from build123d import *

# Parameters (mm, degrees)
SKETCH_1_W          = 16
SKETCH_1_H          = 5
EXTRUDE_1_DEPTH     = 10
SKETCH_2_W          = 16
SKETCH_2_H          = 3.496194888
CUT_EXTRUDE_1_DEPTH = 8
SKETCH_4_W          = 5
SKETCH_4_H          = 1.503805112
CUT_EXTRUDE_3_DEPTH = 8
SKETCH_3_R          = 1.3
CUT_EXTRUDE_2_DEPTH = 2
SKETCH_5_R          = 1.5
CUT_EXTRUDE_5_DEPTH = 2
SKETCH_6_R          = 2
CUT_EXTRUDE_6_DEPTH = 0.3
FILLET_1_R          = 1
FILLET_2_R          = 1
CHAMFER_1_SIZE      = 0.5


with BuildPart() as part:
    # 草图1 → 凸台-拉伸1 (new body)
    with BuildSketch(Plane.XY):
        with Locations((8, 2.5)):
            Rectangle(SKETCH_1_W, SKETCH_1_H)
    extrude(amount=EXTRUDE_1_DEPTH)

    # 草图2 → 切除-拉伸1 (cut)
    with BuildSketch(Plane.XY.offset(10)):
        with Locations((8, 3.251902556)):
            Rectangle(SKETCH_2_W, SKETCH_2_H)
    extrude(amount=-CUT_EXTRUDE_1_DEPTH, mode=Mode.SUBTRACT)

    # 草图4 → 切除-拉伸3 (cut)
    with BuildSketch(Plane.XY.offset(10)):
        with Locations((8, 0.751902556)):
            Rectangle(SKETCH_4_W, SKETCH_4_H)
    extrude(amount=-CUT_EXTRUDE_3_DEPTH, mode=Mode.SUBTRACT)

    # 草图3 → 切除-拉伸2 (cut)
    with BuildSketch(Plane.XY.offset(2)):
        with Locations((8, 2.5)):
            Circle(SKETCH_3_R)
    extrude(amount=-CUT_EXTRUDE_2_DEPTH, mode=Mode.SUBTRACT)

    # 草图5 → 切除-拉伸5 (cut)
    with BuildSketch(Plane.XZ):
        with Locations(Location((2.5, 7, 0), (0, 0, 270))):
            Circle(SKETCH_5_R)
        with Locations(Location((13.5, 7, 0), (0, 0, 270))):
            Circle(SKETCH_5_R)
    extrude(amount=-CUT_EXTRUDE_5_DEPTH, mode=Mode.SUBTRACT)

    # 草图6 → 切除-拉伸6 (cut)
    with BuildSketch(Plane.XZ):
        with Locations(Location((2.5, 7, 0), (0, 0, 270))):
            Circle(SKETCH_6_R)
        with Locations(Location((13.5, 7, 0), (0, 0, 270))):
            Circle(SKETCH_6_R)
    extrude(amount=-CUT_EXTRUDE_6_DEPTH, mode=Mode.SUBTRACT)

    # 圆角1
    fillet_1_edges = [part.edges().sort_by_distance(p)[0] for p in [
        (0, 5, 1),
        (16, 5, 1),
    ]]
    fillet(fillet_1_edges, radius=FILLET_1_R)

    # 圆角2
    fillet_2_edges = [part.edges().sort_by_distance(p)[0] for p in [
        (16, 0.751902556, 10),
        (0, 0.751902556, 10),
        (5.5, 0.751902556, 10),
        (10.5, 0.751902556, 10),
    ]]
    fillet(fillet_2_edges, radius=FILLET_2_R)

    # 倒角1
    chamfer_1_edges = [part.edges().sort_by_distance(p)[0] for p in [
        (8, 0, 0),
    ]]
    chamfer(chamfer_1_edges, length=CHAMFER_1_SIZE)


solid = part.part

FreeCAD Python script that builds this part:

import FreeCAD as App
import Part
import Sketcher

V = App.Vector
Q = App.Units.Quantity


def edges_at(feature, points):
    """Names of the edges that pass closest to the given points."""
    edges = feature.Shape.Edges
    near = lambda p: min(range(len(edges)), key=lambda i: edges[i].distToShape(Part.Vertex(*p))[0])
    return sorted({f"Edge{near(p) + 1}" for p in points})


def add_polygon(sketch, points):
    """Adds a closed chain of lines whose ends are joined by coincident constraints."""
    first, n = sketch.GeometryCount, len(points)
    for a, b in zip(points, points[1:] + points[:1]):
        sketch.addGeometry(Part.LineSegment(App.Vector(*a, 0), App.Vector(*b, 0)), False)
    for i in range(n):
        sketch.addConstraint(Sketcher.Constraint("Coincident", first + i, 2, first + (i + 1) % n, 1))

doc = App.newDocument("Part")
body = doc.addObject("PartDesign::Body", "Body")

# Sketch on XY plane
sketch1 = body.newObject("Sketcher::SketchObject", "Sketch")
sketch1.AttachmentSupport = (doc.getObject("XY_Plane"), [""])
sketch1.MapMode = "FlatFace"
add_polygon(sketch1, [(0, 5), (0, 0), (16, 0), (16, 5)])  # lines 0-3
sketch1.addConstraint([
    Sketcher.Constraint("Vertical", 0),
    Sketcher.Constraint("Horizontal", 1),
    Sketcher.Constraint("Vertical", 2),
    Sketcher.Constraint("Horizontal", 3),
    Sketcher.Constraint("Coincident", 0, 2, -1, 1),
    Sketcher.Constraint("DistanceX", 1, 1, 1, 2, Q("16 mm")),
    Sketcher.Constraint("DistanceY", 0, 2, 0, 1, Q("5 mm")),
])
pad1 = body.newObject("PartDesign::Pad", "Pad")
pad1.Profile = sketch1
pad1.Length = 10

# Sketch on XY plane
sketch2 = body.newObject("Sketcher::SketchObject", "Sketch001")
sketch2.AttachmentSupport = (doc.getObject("XY_Plane"), [""])
sketch2.MapMode = "FlatFace"
sketch2.AttachmentOffset = App.Placement(V(0, 0, 10), App.Rotation())
add_polygon(sketch2, [(0, 5), (0, 1.503805), (16, 1.503805), (16, 5)])  # lines 0-3
sketch2.addConstraint([
    Sketcher.Constraint("Vertical", 0),
    Sketcher.Constraint("Horizontal", 1),
    Sketcher.Constraint("Vertical", 2),
    Sketcher.Constraint("Horizontal", 3),
    Sketcher.Constraint("PointOnObject", 0, 2, -2),
    Sketcher.Constraint("DistanceX", 1, 1, 1, 2, Q("16 mm")),
    Sketcher.Constraint("DistanceY", -1, 1, 2, 2, Q("5 mm")),
    Sketcher.Constraint("DistanceY", 0, 2, 0, 1, Q("3.496195 mm")),
])
pocket1 = body.newObject("PartDesign::Pocket", "Pocket")
pocket1.Profile = sketch2
pocket1.Length = 8

# Sketch on XY plane
sketch3 = body.newObject("Sketcher::SketchObject", "Sketch002")
sketch3.AttachmentSupport = (doc.getObject("XY_Plane"), [""])
sketch3.MapMode = "FlatFace"
sketch3.AttachmentOffset = App.Placement(V(0, 0, 10), App.Rotation())
add_polygon(sketch3, [(5.5, 1.503805), (5.5, 0), (10.5, 0), (10.5, 1.503805)])  # lines 0-3
sketch3.addConstraint([
    Sketcher.Constraint("Vertical", 0),
    Sketcher.Constraint("Horizontal", 1),
    Sketcher.Constraint("Vertical", 2),
    Sketcher.Constraint("Horizontal", 3),
    Sketcher.Constraint("PointOnObject", 0, 2, -1),
    Sketcher.Constraint("DistanceX", 1, 1, 1, 2, Q("5 mm")),
    Sketcher.Constraint("DistanceX", -1, 1, 0, 2, Q("5.5 mm")),
    Sketcher.Constraint("DistanceY", 0, 2, 0, 1, Q("1.503805 mm")),
])
pocket2 = body.newObject("PartDesign::Pocket", "Pocket001")
pocket2.Profile = sketch3
pocket2.Length = 8

# Sketch on XY plane
sketch4 = body.newObject("Sketcher::SketchObject", "Sketch003")
sketch4.AttachmentSupport = (doc.getObject("XY_Plane"), [""])
sketch4.MapMode = "FlatFace"
sketch4.AttachmentOffset = App.Placement(V(0, 0, 2), App.Rotation())
sketch4.addGeometry(Part.Circle(V(8, 2.5, 0), V(0, 0, 1), 1.3), False)
sketch4.addConstraint([
    Sketcher.Constraint("Diameter", 0, Q("2.6 mm")),
    Sketcher.Constraint("DistanceX", -1, 1, 0, 3, Q("8 mm")),
    Sketcher.Constraint("DistanceY", -1, 1, 0, 3, Q("2.5 mm")),
])
pocket3 = body.newObject("PartDesign::Pocket", "Pocket002")
pocket3.Profile = sketch4
pocket3.Length = 2

# Sketch on XZ plane
sketch5 = body.newObject("Sketcher::SketchObject", "Sketch004")
sketch5.AttachmentSupport = (doc.getObject("XZ_Plane"), [""])
sketch5.MapMode = "FlatFace"
sketch5.addGeometry([
    Part.Circle(V(2.5, 7, 0), V(0, 0, 1), 1.5),
    Part.Circle(V(13.5, 7, 0), V(0, 0, 1), 1.5),
], False)
sketch5.addConstraint([
    Sketcher.Constraint("Equal", 0, 1),
    Sketcher.Constraint("Horizontal", 0, 3, 1, 3),
    Sketcher.Constraint("Diameter", 0, Q("3 mm")),
    Sketcher.Constraint("DistanceY", -1, 1, 0, 3, Q("7 mm")),
    Sketcher.Constraint("DistanceX", 0, 3, 1, 3, Q("11 mm")),
    Sketcher.Constraint("DistanceX", -1, 1, 0, 3, Q("2.5 mm")),
])
pocket4 = body.newObject("PartDesign::Pocket", "Pocket003")
pocket4.Profile = sketch5
pocket4.Length = 2

# Sketch on XZ plane
sketch6 = body.newObject("Sketcher::SketchObject", "Sketch005")
sketch6.AttachmentSupport = (doc.getObject("XZ_Plane"), [""])
sketch6.MapMode = "FlatFace"
sketch6.addGeometry([
    Part.Circle(V(2.5, 7, 0), V(0, 0, 1), 2),
    Part.Circle(V(13.5, 7, 0), V(0, 0, 1), 2),
], False)
sketch6.addConstraint([
    Sketcher.Constraint("Equal", 0, 1),
    Sketcher.Constraint("Horizontal", 0, 3, 1, 3),
    Sketcher.Constraint("Diameter", 0, Q("4 mm")),
    Sketcher.Constraint("DistanceY", -1, 1, 0, 3, Q("7 mm")),
    Sketcher.Constraint("DistanceX", 0, 3, 1, 3, Q("11 mm")),
    Sketcher.Constraint("DistanceX", -1, 1, 0, 3, Q("2.5 mm")),
])
pocket5 = body.newObject("PartDesign::Pocket", "Pocket004")
pocket5.Profile = sketch6
pocket5.Length = 0.3
doc.recompute()

fillet = body.newObject("PartDesign::Fillet", "Fillet")
fillet.Base = (pocket5, edges_at(pocket5, [(0, 5, 1), (16, 5, 1)]))
fillet.Radius = 1
doc.recompute()

fillet2 = body.newObject("PartDesign::Fillet", "Fillet001")
fillet2.Base = (fillet, edges_at(fillet, [
    (16, 0.752, 10),
    (0, 0.752, 10),
    (5.5, 0.752, 10),
    (10.5, 0.752, 10),
]))
fillet2.Radius = 1
doc.recompute()

chamfer = body.newObject("PartDesign::Chamfer", "Chamfer")
chamfer.Base = (fillet2, edges_at(fillet2, [(8, 0, 0)]))
chamfer.Size = 0.5

doc.recompute()
